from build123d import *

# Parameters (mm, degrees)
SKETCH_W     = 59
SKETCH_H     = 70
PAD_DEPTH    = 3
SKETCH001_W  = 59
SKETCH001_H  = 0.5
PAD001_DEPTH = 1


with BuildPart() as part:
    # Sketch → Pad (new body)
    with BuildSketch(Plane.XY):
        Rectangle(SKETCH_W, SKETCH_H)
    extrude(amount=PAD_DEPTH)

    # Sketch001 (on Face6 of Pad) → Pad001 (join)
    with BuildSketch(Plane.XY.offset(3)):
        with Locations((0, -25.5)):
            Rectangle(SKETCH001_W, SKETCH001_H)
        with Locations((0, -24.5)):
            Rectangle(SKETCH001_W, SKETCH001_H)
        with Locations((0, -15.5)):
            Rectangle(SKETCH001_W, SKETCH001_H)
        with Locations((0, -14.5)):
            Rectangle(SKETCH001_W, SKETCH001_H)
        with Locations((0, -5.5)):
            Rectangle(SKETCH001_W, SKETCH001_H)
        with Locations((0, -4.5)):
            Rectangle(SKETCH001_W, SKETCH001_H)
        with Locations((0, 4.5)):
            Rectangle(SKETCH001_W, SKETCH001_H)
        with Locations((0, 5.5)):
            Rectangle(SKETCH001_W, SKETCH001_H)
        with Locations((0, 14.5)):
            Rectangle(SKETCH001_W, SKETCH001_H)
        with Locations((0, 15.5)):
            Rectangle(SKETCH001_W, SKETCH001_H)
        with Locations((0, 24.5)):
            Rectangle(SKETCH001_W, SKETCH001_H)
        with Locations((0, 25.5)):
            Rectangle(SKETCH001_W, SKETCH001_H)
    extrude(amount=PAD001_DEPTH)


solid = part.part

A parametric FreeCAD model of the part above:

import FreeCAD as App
import Part
import Sketcher
Q = App.Units.Quantity

doc = App.newDocument("Part")
body = doc.addObject("PartDesign::Body", "Body")

# Sketch on XY plane
sketch1 = body.newObject("Sketcher::SketchObject", "Sketch")
sketch1.AttachmentSupport = (doc.getObject("XY_Plane"), [""])
sketch1.MapMode = "FlatFace"
sketch1.addGeometry([
    Part.LineSegment(App.Vector(-30, 35, 0), App.Vector(-30, -35, 0)),
    Part.LineSegment(App.Vector(-30, -35, 0), App.Vector(30, -35, 0)),
    Part.LineSegment(App.Vector(30, -35, 0), App.Vector(30, 35, 0)),
    Part.LineSegment(App.Vector(30, 35, 0), App.Vector(-30, 35, 0)),
], False)
sketch1.addConstraint([
    Sketcher.Constraint("Coincident", 0, 2, 1, 1),
    Sketcher.Constraint("Coincident", 1, 2, 2, 1),
    Sketcher.Constraint("Coincident", 2, 2, 3, 1),
    Sketcher.Constraint("Coincident", 3, 2, 0, 1),
    Sketcher.Constraint("Vertical", 0),
    Sketcher.Constraint("Horizontal", 1),
    Sketcher.Constraint("Vertical", 2),
    Sketcher.Constraint("Horizontal", 3),
    Sketcher.Constraint("Symmetric", 0, 2, 2, 2, -1, 1),
    Sketcher.Constraint("DistanceX", 1, 1, 1, 2, Q("59 mm")),
    Sketcher.Constraint("DistanceY", 0, 2, 0, 1, Q("70 mm")),
])
pad1 = body.newObject("PartDesign::Pad", "Pad")
pad1.Profile = sketch1
pad1.Length = 3

# Sketch on XY plane
sketch2 = body.newObject("Sketcher::SketchObject", "Sketch001")
sketch2.AttachmentSupport = (doc.getObject("XY_Plane"), [""])
sketch2.MapMode = "FlatFace"
sketch2.AttachmentOffset = App.Placement(App.Vector(0, 0, 3), App.Rotation())
sketch2.addGeometry([
    Part.LineSegment(App.Vector(-29.5, -25.2, 0), App.Vector(-29.5, -25.8, 0)),  # 0
    Part.LineSegment(App.Vector(-29.5, -25.8, 0), App.Vector(29.5, -25.8, 0)),  # 1
    Part.LineSegment(App.Vector(29.5, -25.8, 0), App.Vector(29.5, -25.2, 0)),  # 2
    Part.LineSegment(App.Vector(29.5, -25.2, 0), App.Vector(-29.5, -25.2, 0)),  # 3
    Part.LineSegment(App.Vector(-29.5, -24.2, 0), App.Vector(-29.5, -24.8, 0)),  # 4
    Part.LineSegment(App.Vector(-29.5, -24.8, 0), App.Vector(29.5, -24.8, 0)),  # 5
    Part.LineSegment(App.Vector(29.5, -24.8, 0), App.Vector(29.5, -24.2, 0)),  # 6
    Part.LineSegment(App.Vector(29.5, -24.2, 0), App.Vector(-29.5, -24.2, 0)),  # 7
    Part.LineSegment(App.Vector(-29.5, -15.2, 0), App.Vector(-29.5, -15.8, 0)),  # 8
    Part.LineSegment(App.Vector(-29.5, -15.8, 0), App.Vector(29.5, -15.8, 0)),  # 9
    Part.LineSegment(App.Vector(29.5, -15.8, 0), App.Vector(29.5, -15.2, 0)),  # 10
    Part.LineSegment(App.Vector(29.5, -15.2, 0), App.Vector(-29.5, -15.2, 0)),  # 11
    Part.LineSegment(App.Vector(-29.5, -14.2, 0), App.Vector(-29.5, -14.8, 0)),  # 12
    Part.LineSegment(App.Vector(-29.5, -14.8, 0), App.Vector(29.5, -14.8, 0)),  # 13
    Part.LineSegment(App.Vector(29.5, -14.8, 0), App.Vector(29.5, -14.2, 0)),  # 14
    Part.LineSegment(App.Vector(29.5, -14.2, 0), App.Vector(-29.5, -14.2, 0)),  # 15
    Part.LineSegment(App.Vector(-29.5, -5.2, 0), App.Vector(-29.5, -5.8, 0)),  # 16
    Part.LineSegment(App.Vector(-29.5, -5.8, 0), App.Vector(29.5, -5.8, 0)),  # 17
    Part.LineSegment(App.Vector(29.5, -5.8, 0), App.Vector(29.5, -5.2, 0)),  # 18
    Part.LineSegment(App.Vector(29.5, -5.2, 0), App.Vector(-29.5, -5.2, 0)),  # 19
    Part.LineSegment(App.Vector(-29.5, -4.2, 0), App.Vector(-29.5, -4.8, 0)),  # 20
    Part.LineSegment(App.Vector(-29.5, -4.8, 0), App.Vector(29.5, -4.8, 0)),  # 21
    Part.LineSegment(App.Vector(29.5, -4.8, 0), App.Vector(29.5, -4.2, 0)),  # 22
    Part.LineSegment(App.Vector(29.5, -4.2, 0), App.Vector(-29.5, -4.2, 0)),  # 23
    Part.LineSegment(App.Vector(-29.5, 4.8, 0), App.Vector(-29.5, 4.2, 0)),  # 24
    Part.LineSegment(App.Vector(-29.5, 4.2, 0), App.Vector(29.5, 4.2, 0)),  # 25
    Part.LineSegment(App.Vector(29.5, 4.2, 0), App.Vector(29.5, 4.8, 0)),  # 26
    Part.LineSegment(App.Vector(29.5, 4.8, 0), App.Vector(-29.5, 4.8, 0)),  # 27
    Part.LineSegment(App.Vector(-29.5, 5.8, 0), App.Vector(-29.5, 5.2, 0)),  # 28
    Part.LineSegment(App.Vector(-29.5, 5.2, 0), App.Vector(29.5, 5.2, 0)),  # 29
    Part.LineSegment(App.Vector(29.5, 5.2, 0), App.Vector(29.5, 5.8, 0)),  # 30
    Part.LineSegment(App.Vector(29.5, 5.8, 0), App.Vector(-29.5, 5.8, 0)),  # 31
    Part.LineSegment(App.Vector(-29.5, 14.8, 0), App.Vector(-29.5, 14.2, 0)),  # 32
    Part.LineSegment(App.Vector(-29.5, 14.2, 0), App.Vector(29.5, 14.2, 0)),  # 33
    Part.LineSegment(App.Vector(29.5, 14.2, 0), App.Vector(29.5, 14.8, 0)),  # 34
    Part.LineSegment(App.Vector(29.5, 14.8, 0), App.Vector(-29.5, 14.8, 0)),  # 35
    Part.LineSegment(App.Vector(-29.5, 15.8, 0), App.Vector(-29.5, 15.2, 0)),  # 36
    Part.LineSegment(App.Vector(-29.5, 15.2, 0), App.Vector(29.5, 15.2, 0)),  # 37
    Part.LineSegment(App.Vector(29.5, 15.2, 0), App.Vector(29.5, 15.8, 0)),  # 38
    Part.LineSegment(App.Vector(29.5, 15.8, 0), App.Vector(-29.5, 15.8, 0)),  # 39
    Part.LineSegment(App.Vector(-29.5, 24.8, 0), App.Vector(-29.5, 24.2, 0)),  # 40
    Part.LineSegment(App.Vector(-29.5, 24.2, 0), App.Vector(29.5, 24.2, 0)),  # 41
    Part.LineSegment(App.Vector(29.5, 24.2, 0), App.Vector(29.5, 24.8, 0)),  # 42
    Part.LineSegment(App.Vector(29.5, 24.8, 0), App.Vector(-29.5, 24.8, 0)),  # 43
    Part.LineSegment(App.Vector(-29.5, 25.8, 0), App.Vector(-29.5, 25.2, 0)),  # 44
    Part.LineSegment(App.Vector(-29.5, 25.2, 0), App.Vector(29.5, 25.2, 0)),  # 45
    Part.LineSegment(App.Vector(29.5, 25.2, 0), App.Vector(29.5, 25.8, 0)),  # 46
    Part.LineSegment(App.Vector(29.5, 25.8, 0), App.Vector(-29.5, 25.8, 0)),  # 47
], False)
sketch2.addConstraint([
    Sketcher.Constraint("Coincident", 0, 2, 1, 1),
    Sketcher.Constraint("Coincident", 1, 2, 2, 1),
    Sketcher.Constraint("Coincident", 2, 2, 3, 1),
    Sketcher.Constraint("Coincident", 3, 2, 0, 1),
    Sketcher.Constraint("Coincident", 4, 2, 5, 1),
    Sketcher.Constraint("Coincident", 5, 2, 6, 1),
    Sketcher.Constraint("Coincident", 6, 2, 7, 1),
    Sketcher.Constraint("Coincident", 7, 2, 4, 1),
    Sketcher.Constraint("Coincident", 8, 2, 9, 1),
    Sketcher.Constraint("Coincident", 9, 2, 10, 1),
    Sketcher.Constraint("Coincident", 10, 2, 11, 1),
    Sketcher.Constraint("Coincident", 11, 2, 8, 1),
    Sketcher.Constraint("Coincident", 12, 2, 13, 1),
    Sketcher.Constraint("Coincident", 13, 2, 14, 1),
    Sketcher.Constraint("Coincident", 14, 2, 15, 1),
    Sketcher.Constraint("Coincident", 15, 2, 12, 1),
    Sketcher.Constraint("Coincident", 16, 2, 17, 1),
    Sketcher.Constraint("Coincident", 17, 2, 18, 1),
    Sketcher.Constraint("Coincident", 18, 2, 19, 1),
    Sketcher.Constraint("Coincident", 19, 2, 16, 1),
    Sketcher.Constraint("Coincident", 20, 2, 21, 1),
    Sketcher.Constraint("Coincident", 21, 2, 22, 1),
    Sketcher.Constraint("Coincident", 22, 2, 23, 1),
    Sketcher.Constraint("Coincident", 23, 2, 20, 1),
    Sketcher.Constraint("Coincident", 24, 2, 25, 1),
    Sketcher.Constraint("Coincident", 25, 2, 26, 1),
    Sketcher.Constraint("Coincident", 26, 2, 27, 1),
    Sketcher.Constraint("Coincident", 27, 2, 24, 1),
    Sketcher.Constraint("Coincident", 28, 2, 29, 1),
    Sketcher.Constraint("Coincident", 29, 2, 30, 1),
    Sketcher.Constraint("Coincident", 30, 2, 31, 1),
    Sketcher.Constraint("Coincident", 31, 2, 28, 1),
    Sketcher.Constraint("Coincident", 32, 2, 33, 1),
    Sketcher.Constraint("Coincident", 33, 2, 34, 1),
    Sketcher.Constraint("Coincident", 34, 2, 35, 1),
    Sketcher.Constraint("Coincident", 35, 2, 32, 1),
    Sketcher.Constraint("Coincident", 36, 2, 37, 1),
    Sketcher.Constraint("Coincident", 37, 2, 38, 1),
    Sketcher.Constraint("Coincident", 38, 2, 39, 1),
    Sketcher.Constraint("Coincident", 39, 2, 36, 1),
    Sketcher.Constraint("Coincident", 40, 2, 41, 1),
    Sketcher.Constraint("Coincident", 41, 2, 42, 1),
    Sketcher.Constraint("Coincident", 42, 2, 43, 1),
    Sketcher.Constraint("Coincident", 43, 2, 40, 1),
    Sketcher.Constraint("Coincident", 44, 2, 45, 1),
    Sketcher.Constraint("Coincident", 45, 2, 46, 1),
    Sketcher.Constraint("Coincident", 46, 2, 47, 1),
    Sketcher.Constraint("Coincident", 47, 2, 44, 1),
    Sketcher.Constraint("Vertical", 0),
    Sketcher.Constraint("Horizontal", 1),
    Sketcher.Constraint("Vertical", 2),
    Sketcher.Constraint("Horizontal", 3),
    Sketcher.Constraint("Vertical", 4),
    Sketcher.Constraint("Horizontal", 5),
    Sketcher.Constraint("Vertical", 6),
    Sketcher.Constraint("Horizontal", 7),
    Sketcher.Constraint("Vertical", 8),
    Sketcher.Constraint("Horizontal", 9),
    Sketcher.Constraint("Vertical", 10),
    Sketcher.Constraint("Horizontal", 11),
    Sketcher.Constraint("Vertical", 12),
    Sketcher.Constraint("Horizontal", 13),
    Sketcher.Constraint("Vertical", 14),
    Sketcher.Constraint("Horizontal", 15),
    Sketcher.Constraint("Vertical", 16),
    Sketcher.Constraint("Horizontal", 17),
    Sketcher.Constraint("Vertical", 18),
    Sketcher.Constraint("Horizontal", 19),
    Sketcher.Constraint("Vertical", 20),
    Sketcher.Constraint("Horizontal", 21),
    Sketcher.Constraint("Vertical", 22),
    Sketcher.Constraint("Horizontal", 23),
    Sketcher.Constraint("Vertical", 24),
    Sketcher.Constraint("Horizontal", 25),
    Sketcher.Constraint("Vertical", 26),
    Sketcher.Constraint("Horizontal", 27),
    Sketcher.Constraint("Vertical", 28),
    Sketcher.Constraint("Horizontal", 29),
    Sketcher.Constraint("Vertical", 30),
    Sketcher.Constraint("Horizontal", 31),
    Sketcher.Constraint("Vertical", 32),
    Sketcher.Constraint("Horizontal", 33),
    Sketcher.Constraint("Vertical", 34),
    Sketcher.Constraint("Horizontal", 35),
    Sketcher.Constraint("Vertical", 36),
    Sketcher.Constraint("Horizontal", 37),
    Sketcher.Constraint("Vertical", 38),
    Sketcher.Constraint("Horizontal", 39),
    Sketcher.Constraint("Vertical", 40),
    Sketcher.Constraint("Horizontal", 41),
    Sketcher.Constraint("Vertical", 42),
    Sketcher.Constraint("Horizontal", 43),
    Sketcher.Constraint("Vertical", 44),
    Sketcher.Constraint("Horizontal", 45),
    Sketcher.Constraint("Vertical", 46),
    Sketcher.Constraint("Horizontal", 47),
    Sketcher.Constraint("Symmetric", 22, 2, 24, 2, -1, 1),
    Sketcher.Constraint("Symmetric", 20, 2, 26, 2, -1, 1),
    Sketcher.Constraint("Symmetric", 18, 2, 28, 2, -1, 1),
    Sketcher.Constraint("Symmetric", 16, 2, 30, 2, -1, 1),
    Sketcher.Constraint("Symmetric", 14, 2, 32, 2, -1, 1),
    Sketcher.Constraint("Symmetric", 12, 2, 34, 2, -1, 1),
    Sketcher.Constraint("Symmetric", 10, 2, 36, 2, -1, 1),
    Sketcher.Constraint("Symmetric", 8, 2, 38, 2, -1, 1),
    Sketcher.Constraint("Symmetric", 6, 2, 40, 2, -1, 1),
    Sketcher.Constraint("Symmetric", 4, 2, 42, 2, -1, 1),
    Sketcher.Constraint("Symmetric", 2, 2, 44, 2, -1, 1),
    Sketcher.Constraint("Symmetric", 0, 2, 46, 2, -1, 1),
    Sketcher.Constraint("Vertical", 3, 2, 4, 2),
    Sketcher.Constraint("Vertical", 2, 2, 5, 2),
    Sketcher.Constraint("Vertical", 7, 2, 8, 2),
    Sketcher.Constraint("Vertical", 6, 2, 9, 2),
    Sketcher.Constraint("Vertical", 11, 2, 12, 2),
    Sketcher.Constraint("Vertical", 10, 2, 13, 2),
    Sketcher.Constraint("Vertical", 15, 2, 16, 2),
    Sketcher.Constraint("Vertical", 14, 2, 17, 2),
    Sketcher.Constraint("Vertical", 19, 2, 20, 2),
    Sketcher.Constraint("Vertical", 18, 2, 21, 2),
    Sketcher.Constraint("Vertical", 23, 2, 24, 2),
    Sketcher.Constraint("Equal", 2, 4),
    Sketcher.Constraint("Equal", 6, 8),
    Sketcher.Constraint("Equal", 10, 12),
    Sketcher.Constraint("Equal", 14, 16),
    Sketcher.Constraint("Equal", 18, 20),
    Sketcher.Constraint("DistanceX", 1, 1, 1, 2, Q("59 mm")),
    Sketcher.Constraint("DistanceY", 0, 2, 0, 1, Q("0.5 mm")),
    Sketcher.Constraint("DistanceY", 0, 2, 4, 2, Q("1 mm")),
    Sketcher.Constraint("DistanceY", 4, 2, 8, 2, Q("9 mm")),
    Sketcher.Constraint("DistanceY", 8, 2, 12, 2, Q("1 mm")),
    Sketcher.Constraint("DistanceY", 12, 2, 16, 2, Q("9 mm")),
    Sketcher.Constraint("DistanceY", 16, 2, 20, 2, Q("1 mm")),
    Sketcher.Constraint("DistanceY", 20, 2, 24, 2, Q("9 mm")),
])
pad2 = body.newObject("PartDesign::Pad", "Pad001")
pad2.Profile = sketch2
pad2.Length = 1

doc.recompute()
